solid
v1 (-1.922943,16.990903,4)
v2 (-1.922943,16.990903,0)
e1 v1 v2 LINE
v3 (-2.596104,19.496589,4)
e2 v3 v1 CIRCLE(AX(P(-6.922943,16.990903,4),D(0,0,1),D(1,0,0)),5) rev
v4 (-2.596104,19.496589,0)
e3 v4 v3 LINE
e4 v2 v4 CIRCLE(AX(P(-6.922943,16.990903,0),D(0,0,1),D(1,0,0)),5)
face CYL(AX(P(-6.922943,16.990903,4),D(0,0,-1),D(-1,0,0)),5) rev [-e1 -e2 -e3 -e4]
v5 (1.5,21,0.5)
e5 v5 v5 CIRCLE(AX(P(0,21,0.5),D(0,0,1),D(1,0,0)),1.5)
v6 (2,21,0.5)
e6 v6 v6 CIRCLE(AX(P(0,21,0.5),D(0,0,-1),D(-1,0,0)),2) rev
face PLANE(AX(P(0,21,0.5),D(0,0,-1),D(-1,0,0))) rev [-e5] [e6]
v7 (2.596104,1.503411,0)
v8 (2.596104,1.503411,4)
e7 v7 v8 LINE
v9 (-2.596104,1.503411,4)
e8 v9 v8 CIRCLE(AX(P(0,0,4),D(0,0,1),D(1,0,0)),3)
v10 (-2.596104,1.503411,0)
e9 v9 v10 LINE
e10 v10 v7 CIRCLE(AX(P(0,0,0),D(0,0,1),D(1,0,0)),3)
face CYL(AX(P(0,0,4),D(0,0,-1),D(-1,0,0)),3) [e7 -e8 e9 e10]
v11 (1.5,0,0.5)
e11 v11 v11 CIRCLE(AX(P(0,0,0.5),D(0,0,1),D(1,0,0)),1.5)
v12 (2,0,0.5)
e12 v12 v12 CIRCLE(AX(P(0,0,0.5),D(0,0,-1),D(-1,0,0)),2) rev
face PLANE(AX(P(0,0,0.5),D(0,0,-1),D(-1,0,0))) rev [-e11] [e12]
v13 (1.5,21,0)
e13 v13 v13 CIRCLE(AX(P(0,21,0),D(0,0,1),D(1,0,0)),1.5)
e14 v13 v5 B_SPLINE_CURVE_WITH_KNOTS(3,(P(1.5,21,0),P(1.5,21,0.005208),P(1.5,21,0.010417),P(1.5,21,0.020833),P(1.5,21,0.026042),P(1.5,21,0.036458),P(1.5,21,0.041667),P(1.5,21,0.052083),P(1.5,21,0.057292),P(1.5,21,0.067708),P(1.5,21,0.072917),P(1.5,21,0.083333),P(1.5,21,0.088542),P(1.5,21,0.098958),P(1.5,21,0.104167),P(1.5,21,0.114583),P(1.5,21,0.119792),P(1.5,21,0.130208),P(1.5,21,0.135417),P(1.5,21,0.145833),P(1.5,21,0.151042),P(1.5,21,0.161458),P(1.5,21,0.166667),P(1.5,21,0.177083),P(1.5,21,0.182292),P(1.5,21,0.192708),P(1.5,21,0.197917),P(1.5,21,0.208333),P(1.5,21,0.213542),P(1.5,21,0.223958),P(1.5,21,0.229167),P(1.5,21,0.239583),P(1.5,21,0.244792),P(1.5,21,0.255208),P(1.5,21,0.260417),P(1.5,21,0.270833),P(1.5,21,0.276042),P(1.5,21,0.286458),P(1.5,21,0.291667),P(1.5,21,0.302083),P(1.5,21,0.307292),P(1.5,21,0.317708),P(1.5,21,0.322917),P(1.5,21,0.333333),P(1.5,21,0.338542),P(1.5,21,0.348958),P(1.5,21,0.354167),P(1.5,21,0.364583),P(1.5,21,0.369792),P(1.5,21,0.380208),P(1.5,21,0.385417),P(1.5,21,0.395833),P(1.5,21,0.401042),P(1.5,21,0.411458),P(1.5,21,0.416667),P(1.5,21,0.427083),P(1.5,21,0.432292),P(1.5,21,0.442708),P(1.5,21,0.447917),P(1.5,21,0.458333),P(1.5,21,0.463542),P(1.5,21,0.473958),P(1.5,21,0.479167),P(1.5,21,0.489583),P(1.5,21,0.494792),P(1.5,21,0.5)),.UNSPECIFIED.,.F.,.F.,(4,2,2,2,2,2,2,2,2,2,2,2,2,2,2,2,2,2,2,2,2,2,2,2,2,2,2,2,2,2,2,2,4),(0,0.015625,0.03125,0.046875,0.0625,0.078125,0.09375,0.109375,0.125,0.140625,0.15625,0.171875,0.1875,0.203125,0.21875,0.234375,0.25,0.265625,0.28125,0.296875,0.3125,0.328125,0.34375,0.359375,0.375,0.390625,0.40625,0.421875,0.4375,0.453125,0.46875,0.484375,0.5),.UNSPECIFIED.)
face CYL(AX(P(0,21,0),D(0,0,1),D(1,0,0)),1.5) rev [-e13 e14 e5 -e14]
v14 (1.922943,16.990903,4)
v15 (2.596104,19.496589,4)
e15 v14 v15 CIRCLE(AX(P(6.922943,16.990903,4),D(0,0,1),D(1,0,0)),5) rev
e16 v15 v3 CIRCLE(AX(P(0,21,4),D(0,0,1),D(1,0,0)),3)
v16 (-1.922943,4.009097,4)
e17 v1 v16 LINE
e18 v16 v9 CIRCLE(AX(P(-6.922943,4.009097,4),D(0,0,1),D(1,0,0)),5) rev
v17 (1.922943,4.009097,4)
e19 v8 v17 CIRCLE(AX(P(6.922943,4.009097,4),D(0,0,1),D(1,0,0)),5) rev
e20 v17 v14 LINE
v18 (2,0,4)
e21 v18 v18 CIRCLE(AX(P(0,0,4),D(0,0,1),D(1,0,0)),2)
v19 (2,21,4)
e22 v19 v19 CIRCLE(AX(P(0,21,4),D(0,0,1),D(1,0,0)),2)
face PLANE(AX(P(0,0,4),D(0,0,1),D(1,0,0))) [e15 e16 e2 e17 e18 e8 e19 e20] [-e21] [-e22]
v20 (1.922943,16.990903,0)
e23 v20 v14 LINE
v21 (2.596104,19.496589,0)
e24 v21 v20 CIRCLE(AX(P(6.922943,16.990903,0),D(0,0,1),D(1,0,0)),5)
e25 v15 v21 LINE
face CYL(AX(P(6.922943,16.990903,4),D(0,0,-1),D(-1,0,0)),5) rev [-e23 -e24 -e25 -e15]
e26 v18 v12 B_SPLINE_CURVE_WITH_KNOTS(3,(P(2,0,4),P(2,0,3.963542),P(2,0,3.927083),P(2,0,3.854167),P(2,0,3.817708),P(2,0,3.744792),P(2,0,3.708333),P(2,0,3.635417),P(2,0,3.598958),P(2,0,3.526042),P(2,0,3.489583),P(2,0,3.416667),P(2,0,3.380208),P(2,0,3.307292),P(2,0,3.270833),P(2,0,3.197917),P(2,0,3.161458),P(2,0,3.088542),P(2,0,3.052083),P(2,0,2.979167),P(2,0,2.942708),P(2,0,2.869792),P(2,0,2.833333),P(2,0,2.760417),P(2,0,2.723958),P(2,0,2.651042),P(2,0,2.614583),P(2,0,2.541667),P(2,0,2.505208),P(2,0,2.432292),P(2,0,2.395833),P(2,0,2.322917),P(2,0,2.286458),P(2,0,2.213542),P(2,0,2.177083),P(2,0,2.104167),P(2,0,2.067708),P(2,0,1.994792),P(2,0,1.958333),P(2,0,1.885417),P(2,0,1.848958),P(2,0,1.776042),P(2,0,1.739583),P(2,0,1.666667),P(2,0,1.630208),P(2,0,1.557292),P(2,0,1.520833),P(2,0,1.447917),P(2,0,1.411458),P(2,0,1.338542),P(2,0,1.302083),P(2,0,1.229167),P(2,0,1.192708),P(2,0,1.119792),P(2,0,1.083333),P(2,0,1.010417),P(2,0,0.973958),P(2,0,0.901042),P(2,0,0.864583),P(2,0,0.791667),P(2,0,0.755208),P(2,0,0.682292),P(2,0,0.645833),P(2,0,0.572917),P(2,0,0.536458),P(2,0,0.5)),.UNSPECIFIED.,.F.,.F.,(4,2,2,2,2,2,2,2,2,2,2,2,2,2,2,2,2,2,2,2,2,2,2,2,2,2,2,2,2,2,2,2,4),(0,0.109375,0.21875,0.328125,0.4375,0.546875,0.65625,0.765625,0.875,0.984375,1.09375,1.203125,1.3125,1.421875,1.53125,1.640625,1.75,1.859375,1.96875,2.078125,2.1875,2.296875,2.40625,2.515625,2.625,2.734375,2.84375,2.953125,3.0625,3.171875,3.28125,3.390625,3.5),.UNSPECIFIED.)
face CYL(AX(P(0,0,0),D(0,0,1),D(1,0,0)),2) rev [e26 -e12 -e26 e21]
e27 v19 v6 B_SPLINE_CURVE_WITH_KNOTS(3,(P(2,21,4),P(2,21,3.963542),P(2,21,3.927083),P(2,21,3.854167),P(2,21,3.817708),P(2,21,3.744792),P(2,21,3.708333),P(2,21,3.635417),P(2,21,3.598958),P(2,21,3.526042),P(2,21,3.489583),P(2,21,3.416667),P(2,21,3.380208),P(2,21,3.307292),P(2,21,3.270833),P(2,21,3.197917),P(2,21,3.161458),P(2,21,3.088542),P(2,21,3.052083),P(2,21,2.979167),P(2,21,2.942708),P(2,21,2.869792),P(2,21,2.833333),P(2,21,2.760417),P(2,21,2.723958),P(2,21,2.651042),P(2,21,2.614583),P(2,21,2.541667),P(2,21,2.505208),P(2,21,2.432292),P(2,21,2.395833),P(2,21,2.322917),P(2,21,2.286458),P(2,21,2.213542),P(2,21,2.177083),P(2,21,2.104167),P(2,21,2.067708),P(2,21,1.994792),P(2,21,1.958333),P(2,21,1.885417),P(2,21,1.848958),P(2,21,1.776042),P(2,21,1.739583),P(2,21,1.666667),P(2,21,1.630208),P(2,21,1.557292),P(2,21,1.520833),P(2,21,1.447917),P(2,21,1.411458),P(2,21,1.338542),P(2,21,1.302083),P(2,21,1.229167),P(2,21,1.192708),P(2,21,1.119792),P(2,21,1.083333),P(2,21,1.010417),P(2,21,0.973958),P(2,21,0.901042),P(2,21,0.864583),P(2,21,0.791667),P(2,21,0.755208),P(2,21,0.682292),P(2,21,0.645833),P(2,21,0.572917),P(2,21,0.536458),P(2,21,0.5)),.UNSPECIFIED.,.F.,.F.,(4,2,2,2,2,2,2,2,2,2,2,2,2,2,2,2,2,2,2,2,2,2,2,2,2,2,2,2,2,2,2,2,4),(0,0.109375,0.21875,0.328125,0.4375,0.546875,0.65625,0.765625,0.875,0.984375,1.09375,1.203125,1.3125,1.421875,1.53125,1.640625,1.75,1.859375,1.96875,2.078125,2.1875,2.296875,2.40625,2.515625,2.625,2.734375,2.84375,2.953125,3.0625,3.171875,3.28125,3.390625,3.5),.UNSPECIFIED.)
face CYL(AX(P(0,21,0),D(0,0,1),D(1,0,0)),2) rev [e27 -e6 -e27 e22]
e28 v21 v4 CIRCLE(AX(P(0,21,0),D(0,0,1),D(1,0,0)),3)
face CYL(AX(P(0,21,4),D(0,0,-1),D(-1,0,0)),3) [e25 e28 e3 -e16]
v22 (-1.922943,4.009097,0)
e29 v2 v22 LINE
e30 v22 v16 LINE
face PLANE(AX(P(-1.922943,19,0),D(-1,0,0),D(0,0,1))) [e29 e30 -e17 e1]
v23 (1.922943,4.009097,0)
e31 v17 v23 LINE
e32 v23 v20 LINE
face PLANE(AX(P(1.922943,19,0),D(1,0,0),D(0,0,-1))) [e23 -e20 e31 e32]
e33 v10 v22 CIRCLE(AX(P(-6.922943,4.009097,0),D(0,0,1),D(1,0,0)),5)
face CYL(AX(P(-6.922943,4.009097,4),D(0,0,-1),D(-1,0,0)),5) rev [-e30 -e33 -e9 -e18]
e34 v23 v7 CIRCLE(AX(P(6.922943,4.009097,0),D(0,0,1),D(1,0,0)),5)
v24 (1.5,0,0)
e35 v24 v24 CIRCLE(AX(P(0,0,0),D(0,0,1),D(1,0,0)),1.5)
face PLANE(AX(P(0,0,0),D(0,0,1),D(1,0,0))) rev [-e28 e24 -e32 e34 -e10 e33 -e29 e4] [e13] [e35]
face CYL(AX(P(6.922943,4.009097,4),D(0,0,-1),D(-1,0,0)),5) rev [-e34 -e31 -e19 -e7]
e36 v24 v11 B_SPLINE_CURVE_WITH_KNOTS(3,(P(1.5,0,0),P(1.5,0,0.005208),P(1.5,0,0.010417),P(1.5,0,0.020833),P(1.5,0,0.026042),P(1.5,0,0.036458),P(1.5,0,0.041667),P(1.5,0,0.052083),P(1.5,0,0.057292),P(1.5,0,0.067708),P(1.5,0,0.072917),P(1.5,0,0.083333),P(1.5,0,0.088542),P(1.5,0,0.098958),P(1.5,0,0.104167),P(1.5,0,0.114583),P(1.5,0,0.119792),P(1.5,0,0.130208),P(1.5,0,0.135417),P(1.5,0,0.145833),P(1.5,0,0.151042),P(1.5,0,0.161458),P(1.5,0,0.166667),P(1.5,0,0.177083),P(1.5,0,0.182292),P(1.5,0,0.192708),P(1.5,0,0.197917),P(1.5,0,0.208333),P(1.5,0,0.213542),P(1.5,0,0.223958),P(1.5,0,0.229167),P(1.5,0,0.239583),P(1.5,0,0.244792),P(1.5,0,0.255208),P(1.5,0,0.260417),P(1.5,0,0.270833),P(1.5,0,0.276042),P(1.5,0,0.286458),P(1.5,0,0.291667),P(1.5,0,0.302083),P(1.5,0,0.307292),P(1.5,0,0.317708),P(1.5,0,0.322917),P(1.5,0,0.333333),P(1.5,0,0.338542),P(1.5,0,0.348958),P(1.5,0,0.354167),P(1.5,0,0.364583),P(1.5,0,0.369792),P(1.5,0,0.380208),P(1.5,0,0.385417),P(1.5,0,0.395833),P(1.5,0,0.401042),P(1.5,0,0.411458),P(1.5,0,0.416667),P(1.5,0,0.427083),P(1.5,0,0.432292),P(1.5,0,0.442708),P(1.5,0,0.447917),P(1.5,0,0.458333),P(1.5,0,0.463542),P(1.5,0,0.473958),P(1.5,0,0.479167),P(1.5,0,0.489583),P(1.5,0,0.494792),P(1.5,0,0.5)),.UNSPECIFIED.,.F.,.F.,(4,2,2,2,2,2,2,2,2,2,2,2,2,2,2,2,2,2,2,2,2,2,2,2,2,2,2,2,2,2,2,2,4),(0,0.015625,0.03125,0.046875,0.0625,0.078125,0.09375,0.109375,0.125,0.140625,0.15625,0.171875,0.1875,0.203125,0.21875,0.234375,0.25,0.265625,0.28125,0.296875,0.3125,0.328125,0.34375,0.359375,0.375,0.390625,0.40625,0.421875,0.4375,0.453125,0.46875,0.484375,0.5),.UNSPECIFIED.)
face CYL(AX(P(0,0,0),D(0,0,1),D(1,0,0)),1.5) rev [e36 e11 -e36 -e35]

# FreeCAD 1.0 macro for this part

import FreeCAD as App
import Part
import Sketcher
from FreeCAD import Vector
Q = App.Units.Quantity


def edges_at(feature, points):
    """Names of the edges that pass closest to the given points."""
    edges = feature.Shape.Edges
    near = lambda p: min(range(len(edges)), key=lambda i: edges[i].distToShape(Part.Vertex(*p))[0])
    return sorted({f"Edge{near(p) + 1}" for p in points})


def add_polygon(sketch, points):
    """Adds a closed chain of lines whose ends are joined by coincident constraints."""
    first, n = sketch.GeometryCount, len(points)
    for a, b in zip(points, points[1:] + points[:1]):
        sketch.addGeometry(Part.LineSegment(App.Vector(*a, 0), App.Vector(*b, 0)), False)
    for i in range(n):
        sketch.addConstraint(Sketcher.Constraint("Coincident", first + i, 2, first + (i + 1) % n, 1))

doc = App.newDocument("Part")
params = doc.addObject("Spreadsheet::Sheet", "Params")
for row, (alias, value) in enumerate([
    ("sketch1_diameter", "6 mm"),
    ("pad1_length", "4 mm"),
    ("sketch2_diameter", "6 mm"),
    ("pad2_length", "4 mm"),
    ("sketch3_diameter", "4 mm"),
    ("pad3_length", "4 mm"),
    ("sketch4_height", "17 mm"),
    ("pad4_length", "4 mm"),
    ("fillet_radius", "5 mm"),
    ("sketch5_diameter", "4 mm"),
    ("pad5_length", "0.5 mm"),
    ("sketch6_diameter", "3 mm"),
    ("pocket1_length", "0.5 mm"),
    ("sketch7_diameter", "4 mm"),
    ("pad6_length", "0.5 mm"),
    ("sketch8_diameter", "3 mm"),
    ("pocket2_length", "0.5 mm"),
], start=1):
    params.set(f"A{row}", alias)
    params.set(f"B{row}", "=" + value)
    params.setAlias(f"B{row}", alias)

body = doc.addObject("PartDesign::Body", "Body")

# Sketch on XY plane
sketch1 = body.newObject("Sketcher::SketchObject", "Sketch")
sketch1.AttachmentSupport = (doc.getObject("XY_Plane"), [""])
sketch1.MapMode = "FlatFace"
sketch1.addGeometry(Part.Circle(Vector(0, 0, 0), Vector(0, 0, 1), 3), False)
sketch1.addConstraint([
    Sketcher.Constraint("Coincident", 0, 3, -1, 1),
    Sketcher.Constraint("Diameter", 0, Q("6 mm")),
])
sketch1.setExpression("Constraints[1]", "Params.sketch1_diameter")
pad1 = body.newObject("PartDesign::Pad", "Pad")
pad1.Profile = sketch1
pad1.setExpression("Length", "Params.pad1_length")
body2 = doc.addObject("PartDesign::Body", "Body001")

# Sketch on XY plane
sketch2 = body2.newObject("Sketcher::SketchObject", "Sketch001")
sketch2.AttachmentSupport = (doc.getObject("XY_Plane001"), [""])
sketch2.MapMode = "FlatFace"
sketch2.addGeometry(Part.Circle(Vector(0, 21, 0), Vector(0, 0, 1), 3), False)
sketch2.addConstraint([
    Sketcher.Constraint("PointOnObject", 0, 3, -2),
    Sketcher.Constraint("Diameter", 0, Q("6 mm")),
    Sketcher.Constraint("DistanceY", -1, 1, 0, 3, Q("21 mm")),
])
sketch2.setExpression("Constraints[1]", "Params.sketch2_diameter")
pad2 = body2.newObject("PartDesign::Pad", "Pad001")
pad2.Profile = sketch2
pad2.setExpression("Length", "Params.pad2_length")
body3 = doc.addObject("PartDesign::Body", "Body002")
body3.AllowCompound = True

# Sketch on XY plane
sketch3 = body3.newObject("Sketcher::SketchObject", "Sketch002")
sketch3.AttachmentSupport = (doc.getObject("XY_Plane002"), [""])
sketch3.MapMode = "FlatFace"
sketch3.AttachmentOffset = App.Placement(Vector(0, 0, 4), App.Rotation())
sketch3.addGeometry([
    Part.Circle(Vector(0, 21, 0), Vector(0, 0, 1), 2),
    Part.Circle(Vector(0, 0, 0), Vector(0, 0, 1), 2),
], False)
sketch3.addConstraint([
    Sketcher.Constraint("Coincident", 1, 3, -1, 1),
    Sketcher.Constraint("Equal", 0, 1),
    Sketcher.Constraint("PointOnObject", 0, 3, -2),
    Sketcher.Constraint("Diameter", 0, Q("4 mm")),
    Sketcher.Constraint("DistanceY", -1, 1, 0, 3, Q("21 mm")),
])
sketch3.setExpression("Constraints[3]", "Params.sketch3_diameter")
pad3 = body3.newObject("PartDesign::Pad", "Pad002")
pad3.Profile = sketch3
pad3.setExpression("Length", "Params.pad3_length")
pad3.Reversed = True
doc.recompute()

body4 = doc.addObject("PartDesign::Body", "Body003")
body4.BaseFeature = body3
boolean = body.newObject("PartDesign::Boolean", "Boolean")
boolean.Type = "Cut"
boolean.addObjects([body4])
doc.recompute()

boolean2 = body2.newObject("PartDesign::Boolean", "Boolean001")
boolean2.Type = "Cut"
boolean2.addObjects([body3])
body.AllowCompound = True
doc.recompute()

boolean3 = body.newObject("PartDesign::Boolean", "Boolean002")
boolean3.Type = "Fuse"
boolean3.addObjects([body2])

# Sketch on XY plane
sketch4 = body.newObject("Sketcher::SketchObject", "Sketch003")
sketch4.AttachmentSupport = (doc.getObject("XY_Plane"), [""])
sketch4.MapMode = "FlatFace"
sketch4.AttachmentOffset = App.Placement(Vector(0, 0, 4), App.Rotation())
add_polygon(sketch4, [(-1.9, 19), (-1.9, 2), (1.9, 2), (1.9, 19)])  # lines 0-3
sketch4.addConstraint([
    Sketcher.Constraint("Vertical", 0),
    Sketcher.Constraint("Horizontal", 1),
    Sketcher.Constraint("Vertical", 2),
    Sketcher.Constraint("Horizontal", 3),
    Sketcher.Constraint("DistanceY", 0, 2, 0, 1, Q("17 mm")),
    Sketcher.Constraint("DistanceY", -1, 1, 0, 2, Q("2 mm")),
    Sketcher.Constraint("DistanceX", 1, 1, 1, 2, Q("3.845887 mm")),
    Sketcher.Constraint("DistanceX", 0, 2, -1, 1, Q("1.922943 mm")),
])
sketch4.setExpression("Constraints[8]", "Params.sketch4_height")
pad4 = body.newObject("PartDesign::Pad", "Pad003")
pad4.Profile = sketch4
pad4.setExpression("Length", "Params.pad4_length")
pad4.Reversed = True
doc.recompute()

fillet = body.newObject("PartDesign::Fillet", "Fillet")
fillet.Base = (pad4, edges_at(pad4, [
    (-1.923, 2.303, 2),
    (1.923, 2.303, 2),
    (1.923, 18.697, 2),
    (-1.923, 18.697, 2),
]))
fillet.setExpression("Radius", "Params.fillet_radius")

# Sketch on XY plane
sketch5 = body.newObject("Sketcher::SketchObject", "Sketch004")
sketch5.AttachmentSupport = (doc.getObject("XY_Plane"), [""])
sketch5.MapMode = "FlatFace"
sketch5.AttachmentOffset = App.Placement(Vector(0, 0, 0.5), App.Rotation())
sketch5.addGeometry(Part.Circle(Vector(0, 21, 0), Vector(0, 0, 1), 2), False)
sketch5.addConstraint([
    Sketcher.Constraint("PointOnObject", 0, 3, -2),
    Sketcher.Constraint("Diameter", 0, Q("4 mm")),
    Sketcher.Constraint("DistanceY", -1, 1, 0, 3, Q("21 mm")),
])
sketch5.setExpression("Constraints[1]", "Params.sketch5_diameter")
pad5 = body.newObject("PartDesign::Pad", "Pad004")
pad5.Profile = sketch5
pad5.setExpression("Length", "Params.pad5_length")
pad5.Reversed = True

# Sketch on XY plane
sketch6 = body.newObject("Sketcher::SketchObject", "Sketch005")
sketch6.AttachmentSupport = (doc.getObject("XY_Plane"), [""])
sketch6.MapMode = "FlatFace"
sketch6.AttachmentOffset = App.Placement(Vector(0, 0, 0.5), App.Rotation())
sketch6.addGeometry(Part.Circle(Vector(0, 21, 0), Vector(0, 0, 1), 1.5), False)
sketch6.addConstraint([
    Sketcher.Constraint("PointOnObject", 0, 3, -2),
    Sketcher.Constraint("Diameter", 0, Q("3 mm")),
    Sketcher.Constraint("DistanceY", -1, 1, 0, 3, Q("21 mm")),
])
sketch6.setExpression("Constraints[1]", "Params.sketch6_diameter")
pocket1 = body.newObject("PartDesign::Pocket", "Pocket")
pocket1.Profile = sketch6
pocket1.setExpression("Length", "Params.pocket1_length")

# Sketch on XY plane
sketch7 = body.newObject("Sketcher::SketchObject", "Sketch006")
sketch7.AttachmentSupport = (doc.getObject("XY_Plane"), [""])
sketch7.MapMode = "FlatFace"
sketch7.AttachmentOffset = App.Placement(Vector(0, 0, 0.5), App.Rotation())
sketch7.addGeometry(Part.Circle(Vector(0, 0, 0), Vector(0, 0, 1), 2), False)
sketch7.addConstraint([
    Sketcher.Constraint("Coincident", 0, 3, -1, 1),
    Sketcher.Constraint("Diameter", 0, Q("4 mm")),
])
sketch7.setExpression("Constraints[1]", "Params.sketch7_diameter")
pad6 = body.newObject("PartDesign::Pad", "Pad005")
pad6.Profile = sketch7
pad6.setExpression("Length", "Params.pad6_length")
pad6.Reversed = True

# Sketch on XY plane
sketch8 = body.newObject("Sketcher::SketchObject", "Sketch007")
sketch8.AttachmentSupport = (doc.getObject("XY_Plane"), [""])
sketch8.MapMode = "FlatFace"
sketch8.AttachmentOffset = App.Placement(Vector(0, 0, 0.5), App.Rotation())
sketch8.addGeometry(Part.Circle(Vector(0, 0, 0), Vector(0, 0, 1), 1.5), False)
sketch8.addConstraint([
    Sketcher.Constraint("Coincident", 0, 3, -1, 1),
    Sketcher.Constraint("Diameter", 0, Q("3 mm")),
])
sketch8.setExpression("Constraints[1]", "Params.sketch8_diameter")
pocket2 = body.newObject("PartDesign::Pocket", "Pocket001")
pocket2.Profile = sketch8
pocket2.setExpression("Length", "Params.pocket2_length")

doc.recompute()
